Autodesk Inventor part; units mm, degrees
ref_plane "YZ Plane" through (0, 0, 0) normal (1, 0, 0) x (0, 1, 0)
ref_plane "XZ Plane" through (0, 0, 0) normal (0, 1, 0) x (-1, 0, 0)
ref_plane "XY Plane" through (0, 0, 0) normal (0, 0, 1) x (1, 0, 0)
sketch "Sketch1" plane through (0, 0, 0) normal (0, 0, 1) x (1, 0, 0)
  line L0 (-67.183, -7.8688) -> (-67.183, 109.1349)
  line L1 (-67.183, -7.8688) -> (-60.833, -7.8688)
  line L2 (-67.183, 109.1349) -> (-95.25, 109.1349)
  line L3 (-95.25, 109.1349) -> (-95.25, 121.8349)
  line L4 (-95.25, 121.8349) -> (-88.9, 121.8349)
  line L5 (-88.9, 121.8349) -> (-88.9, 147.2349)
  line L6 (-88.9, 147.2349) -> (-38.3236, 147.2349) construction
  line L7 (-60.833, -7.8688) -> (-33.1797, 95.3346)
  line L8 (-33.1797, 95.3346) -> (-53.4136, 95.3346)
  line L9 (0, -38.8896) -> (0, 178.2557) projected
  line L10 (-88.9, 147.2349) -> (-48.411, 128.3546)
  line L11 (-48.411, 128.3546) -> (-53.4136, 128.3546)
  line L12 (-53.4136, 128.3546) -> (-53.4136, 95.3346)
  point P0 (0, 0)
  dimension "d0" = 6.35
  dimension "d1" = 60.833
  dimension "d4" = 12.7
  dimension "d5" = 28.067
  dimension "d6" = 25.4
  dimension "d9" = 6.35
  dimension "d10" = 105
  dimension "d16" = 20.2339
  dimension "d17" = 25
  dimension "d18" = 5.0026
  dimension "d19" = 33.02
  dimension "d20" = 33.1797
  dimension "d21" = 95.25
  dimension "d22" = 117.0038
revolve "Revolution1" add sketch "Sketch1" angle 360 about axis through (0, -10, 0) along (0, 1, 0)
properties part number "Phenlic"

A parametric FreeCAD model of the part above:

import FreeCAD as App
import Part
import Sketcher
Q = App.Units.Quantity

doc = App.newDocument("Part")
body = doc.addObject("PartDesign::Body", "Body")

# Sketch on XY plane
sketch1 = body.newObject("Sketcher::SketchObject", "Sketch")
sketch1.AttachmentSupport = (doc.getObject("XY_Plane"), [""])
sketch1.MapMode = "FlatFace"
sketch1.addGeometry([
    Part.LineSegment(App.Vector(-67, 109, 0), App.Vector(-67, -8, 0)),  # 0
    Part.LineSegment(App.Vector(-67, -8, 0), App.Vector(-61, -8, 0)),  # 1
    Part.LineSegment(App.Vector(-61, -8, 0), App.Vector(-33, 95, 0)),  # 2
    Part.LineSegment(App.Vector(-33, 95, 0), App.Vector(-53, 95, 0)),  # 3
    Part.LineSegment(App.Vector(-53, 95, 0), App.Vector(-53, 128, 0)),  # 4
    Part.LineSegment(App.Vector(-53, 128, 0), App.Vector(-48, 128, 0)),  # 5
    Part.LineSegment(App.Vector(-48, 128, 0), App.Vector(-89, 147, 0)),  # 6
    Part.LineSegment(App.Vector(-89, 147, 0), App.Vector(-89, 122, 0)),  # 7
    Part.LineSegment(App.Vector(-89, 122, 0), App.Vector(-95, 122, 0)),  # 8
    Part.LineSegment(App.Vector(-95, 122, 0), App.Vector(-95, 109, 0)),  # 9
    Part.LineSegment(App.Vector(-95, 109, 0), App.Vector(-67, 109, 0)),  # 10
], False)
sketch1.addConstraint([
    Sketcher.Constraint("Coincident", 0, 2, 1, 1),
    Sketcher.Constraint("Coincident", 1, 2, 2, 1),
    Sketcher.Constraint("Coincident", 2, 2, 3, 1),
    Sketcher.Constraint("Coincident", 3, 2, 4, 1),
    Sketcher.Constraint("Coincident", 4, 2, 5, 1),
    Sketcher.Constraint("Coincident", 5, 2, 6, 1),
    Sketcher.Constraint("Coincident", 6, 2, 7, 1),
    Sketcher.Constraint("Coincident", 7, 2, 8, 1),
    Sketcher.Constraint("Coincident", 8, 2, 9, 1),
    Sketcher.Constraint("Coincident", 9, 2, 10, 1),
    Sketcher.Constraint("Coincident", 10, 2, 0, 1),
    Sketcher.Constraint("Vertical", 0),
    Sketcher.Constraint("Horizontal", 1),
    Sketcher.Constraint("Horizontal", 3),
    Sketcher.Constraint("Vertical", 4),
    Sketcher.Constraint("Horizontal", 5),
    Sketcher.Constraint("Vertical", 7),
    Sketcher.Constraint("Horizontal", 8),
    Sketcher.Constraint("Vertical", 9),
    Sketcher.Constraint("Horizontal", 10),
    Sketcher.Constraint("Equal", 1, 8),
    Sketcher.Constraint("DistanceY", 7, 2, 7, 1, Q("1 in")),
    Sketcher.Constraint("DistanceY", 4, 1, 4, 2, Q("1.3 in")),
    Sketcher.Constraint("DistanceY", 9, 2, 9, 1, Q("0.5 in")),
    Sketcher.Constraint("DistanceX", 1, 1, 1, 2, Q("0.25 in")),
    Sketcher.Constraint("DistanceX", 10, 1, 10, 2, Q("1.105 in")),
    Sketcher.Constraint("DistanceX", 8, 2, -1, 1, Q("3.75 in")),
    Sketcher.Constraint("DistanceX", 3, 2, 3, 1, Q("0.7966 in")),
    Sketcher.Constraint("Angle", 2, Q("75 deg")),
    Sketcher.Constraint("Angle", 6, Q("155 deg")),
    Sketcher.Constraint("DistanceX", 5, 1, 5, 2, 5.0026),
    Sketcher.Constraint("DistanceY", 0, 2, 0, 1, 117.0037),
    Sketcher.Constraint("DistanceY", 0, 2, -1, 1, Q("0.3098 in")),
])
revolution = body.newObject("PartDesign::Revolution", "Revolution")
revolution.Profile = sketch1
revolution.ReferenceAxis = (sketch1, ["V_Axis"])
revolution.Angle = 360

doc.recompute()
